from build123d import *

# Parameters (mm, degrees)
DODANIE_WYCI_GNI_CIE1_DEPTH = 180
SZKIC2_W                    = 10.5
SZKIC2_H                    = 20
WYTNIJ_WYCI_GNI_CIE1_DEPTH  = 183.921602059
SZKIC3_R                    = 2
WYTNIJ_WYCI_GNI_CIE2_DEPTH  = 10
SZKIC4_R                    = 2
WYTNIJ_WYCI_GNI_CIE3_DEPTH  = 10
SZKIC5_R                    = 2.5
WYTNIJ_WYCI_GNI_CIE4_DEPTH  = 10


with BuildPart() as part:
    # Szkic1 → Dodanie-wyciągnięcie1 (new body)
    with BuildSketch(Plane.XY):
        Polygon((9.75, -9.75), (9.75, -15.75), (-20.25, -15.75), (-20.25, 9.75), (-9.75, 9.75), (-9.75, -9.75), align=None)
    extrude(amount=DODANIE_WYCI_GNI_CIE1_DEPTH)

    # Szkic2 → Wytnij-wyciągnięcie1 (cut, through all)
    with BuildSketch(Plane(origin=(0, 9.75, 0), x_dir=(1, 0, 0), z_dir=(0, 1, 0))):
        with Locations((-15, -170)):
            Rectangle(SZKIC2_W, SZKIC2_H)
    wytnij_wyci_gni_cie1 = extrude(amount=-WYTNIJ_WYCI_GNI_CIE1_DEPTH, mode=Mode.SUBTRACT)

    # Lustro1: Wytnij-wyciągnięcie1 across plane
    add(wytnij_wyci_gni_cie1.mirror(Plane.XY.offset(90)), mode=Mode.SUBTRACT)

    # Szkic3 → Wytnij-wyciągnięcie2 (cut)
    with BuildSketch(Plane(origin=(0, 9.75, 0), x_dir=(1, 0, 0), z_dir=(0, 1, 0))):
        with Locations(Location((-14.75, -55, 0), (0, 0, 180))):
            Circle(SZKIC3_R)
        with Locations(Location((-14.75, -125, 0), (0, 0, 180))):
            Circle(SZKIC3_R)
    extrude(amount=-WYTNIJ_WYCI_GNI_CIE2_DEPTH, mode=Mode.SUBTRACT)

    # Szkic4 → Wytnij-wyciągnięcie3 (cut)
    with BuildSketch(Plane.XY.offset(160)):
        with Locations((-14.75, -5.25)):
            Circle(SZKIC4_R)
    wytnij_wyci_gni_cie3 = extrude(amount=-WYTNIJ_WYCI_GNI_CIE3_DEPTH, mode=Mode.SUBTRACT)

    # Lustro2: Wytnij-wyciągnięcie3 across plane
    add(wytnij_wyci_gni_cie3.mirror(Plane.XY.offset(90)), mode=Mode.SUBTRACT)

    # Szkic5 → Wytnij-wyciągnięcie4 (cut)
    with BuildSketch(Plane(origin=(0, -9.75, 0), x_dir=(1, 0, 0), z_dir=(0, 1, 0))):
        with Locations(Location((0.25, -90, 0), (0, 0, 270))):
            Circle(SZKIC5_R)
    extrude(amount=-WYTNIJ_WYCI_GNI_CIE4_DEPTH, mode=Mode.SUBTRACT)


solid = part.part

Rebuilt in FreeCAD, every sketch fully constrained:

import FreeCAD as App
import Part
import Sketcher

V = App.Vector
Q = App.Units.Quantity

doc = App.newDocument("Part")
body = doc.addObject("PartDesign::Body", "Body")

sketch1 = body.newObject("Sketcher::SketchObject", "Sketch")
sketch1.AttachmentSupport = (doc.getObject("XY_Plane"), [""])
sketch1.MapMode = "FlatFace"
sketch1.addGeometry(Part.LineSegment(V(10, -16, 0), V(10, -10, 0)), False)
sketch1.addGeometry(Part.LineSegment(V(10, -10, 0), V(-10, -10, 0)), False)
sketch1.addGeometry(Part.LineSegment(V(-10, -10, 0), V(-10, 10, 0)), False)
sketch1.addGeometry(Part.LineSegment(V(-10, 10, 0), V(-20, 10, 0)), False)
sketch1.addGeometry(Part.LineSegment(V(-20, 10, 0), V(-20, -16, 0)), False)
sketch1.addGeometry(Part.LineSegment(V(-20, -16, 0), V(10, -16, 0)), False)
sketch1.addConstraint(Sketcher.Constraint("Coincident", 0, 2, 1, 1))
sketch1.addConstraint(Sketcher.Constraint("Coincident", 1, 2, 2, 1))
sketch1.addConstraint(Sketcher.Constraint("Coincident", 2, 2, 3, 1))
sketch1.addConstraint(Sketcher.Constraint("Coincident", 3, 2, 4, 1))
sketch1.addConstraint(Sketcher.Constraint("Coincident", 4, 2, 5, 1))
sketch1.addConstraint(Sketcher.Constraint("Coincident", 5, 2, 0, 1))
sketch1.addConstraint(Sketcher.Constraint("Vertical", 0))
sketch1.addConstraint(Sketcher.Constraint("Horizontal", 1))
sketch1.addConstraint(Sketcher.Constraint("Vertical", 2))
sketch1.addConstraint(Sketcher.Constraint("Horizontal", 3))
sketch1.addConstraint(Sketcher.Constraint("Vertical", 4))
sketch1.addConstraint(Sketcher.Constraint("Horizontal", 5))
sketch1.addConstraint(Sketcher.Constraint("Symmetric", 0, 2, 2, 2, -1, 1))
sketch1.addConstraint(Sketcher.Constraint("Equal", 1, 2))
sketch1.addConstraint(Sketcher.Constraint("DistanceX", 5, 1, 5, 2, Q("30 mm")))
sketch1.addConstraint(Sketcher.Constraint("DistanceY", 0, 1, 0, 2, Q("6 mm")))
sketch1.addConstraint(Sketcher.Constraint("DistanceX", 1, 2, 1, 1, Q("19.5 mm")))
pad1 = body.newObject("PartDesign::Pad", "Pad")
pad1.Profile = sketch1
pad1.Length = 180

sketch2 = body.newObject("Sketcher::SketchObject", "Sketch001")
sketch2.AttachmentSupport = (doc.getObject("XZ_Plane"), [""])
sketch2.MapMode = "FlatFace"
sketch2.AttachmentOffset = App.Placement(V(0, 0, -9.75), App.Rotation())
sketch2.addGeometry(Part.LineSegment(V(-20, 160, 0), V(-20, 180, 0)), False)
sketch2.addGeometry(Part.LineSegment(V(-20, 180, 0), V(-10, 180, 0)), False)
sketch2.addGeometry(Part.LineSegment(V(-10, 180, 0), V(-10, 160, 0)), False)
sketch2.addGeometry(Part.LineSegment(V(-10, 160, 0), V(-20, 160, 0)), False)
sketch2.addConstraint(Sketcher.Constraint("Coincident", 0, 2, 1, 1))
sketch2.addConstraint(Sketcher.Constraint("Coincident", 1, 2, 2, 1))
sketch2.addConstraint(Sketcher.Constraint("Coincident", 2, 2, 3, 1))
sketch2.addConstraint(Sketcher.Constraint("Coincident", 3, 2, 0, 1))
sketch2.addConstraint(Sketcher.Constraint("Vertical", 0))
sketch2.addConstraint(Sketcher.Constraint("Horizontal", 1))
sketch2.addConstraint(Sketcher.Constraint("Vertical", 2))
sketch2.addConstraint(Sketcher.Constraint("Horizontal", 3))
sketch2.addConstraint(Sketcher.Constraint("DistanceY", 0, 1, 0, 2, Q("20 mm")))
sketch2.addConstraint(Sketcher.Constraint("DistanceX", 1, 1, 1, 2, Q("10.5 mm")))
sketch2.addConstraint(Sketcher.Constraint("DistanceY", -1, 1, 0, 2, Q("180 mm")))
sketch2.addConstraint(Sketcher.Constraint("DistanceX", 0, 2, -1, 1, Q("20.25 mm")))
pocket1 = body.newObject("PartDesign::Pocket", "Pocket")
pocket1.Profile = sketch2
pocket1.Type = "ThroughAll"
pocket1.Reversed = True
doc.recompute()

datumplane = body.newObject("PartDesign::Plane", "DatumPlane")
datumplane.AttachmentSupport = (doc.getObject("XY_Plane"), [""])
datumplane.MapMode = "FlatFace"
datumplane.AttachmentOffset = App.Placement(V(0, 0, 90), App.Rotation())
mirrored = body.newObject("PartDesign::Mirrored", "Mirrored")
mirrored.Originals = [pocket1]
mirrored.MirrorPlane = (datumplane, [""])
body.Tip = mirrored

sketch3 = body.newObject("Sketcher::SketchObject", "Sketch002")
sketch3.AttachmentSupport = (doc.getObject("XZ_Plane"), [""])
sketch3.MapMode = "FlatFace"
sketch3.AttachmentOffset = App.Placement(V(0, 0, -9.75), App.Rotation())
sketch3.addGeometry(Part.Circle(V(-14.8, 55, 0), V(0, 0, 1), 2), False)
sketch3.addGeometry(Part.Circle(V(-14.8, 125, 0), V(0, 0, 1), 2), False)
sketch3.addConstraint(Sketcher.Constraint("Equal", 0, 1))
sketch3.addConstraint(Sketcher.Constraint("Vertical", 0, 3, 1, 3))
sketch3.addConstraint(Sketcher.Constraint("Diameter", 0, Q("4 mm")))
sketch3.addConstraint(Sketcher.Constraint("DistanceY", -1, 1, 0, 3, Q("55 mm")))
sketch3.addConstraint(Sketcher.Constraint("DistanceY", -1, 1, 1, 3, Q("125 mm")))
sketch3.addConstraint(Sketcher.Constraint("DistanceX", 0, 3, -1, 1, Q("14.75 mm")))
pocket2 = body.newObject("PartDesign::Pocket", "Pocket001")
pocket2.Profile = sketch3
pocket2.Length = 10
pocket2.Reversed = True

sketch4 = body.newObject("Sketcher::SketchObject", "Sketch003")
sketch4.AttachmentSupport = (doc.getObject("XY_Plane"), [""])
sketch4.MapMode = "FlatFace"
sketch4.AttachmentOffset = App.Placement(V(0, 0, 160), App.Rotation())
sketch4.addGeometry(Part.Circle(V(-14.8, -5.2, 0), V(0, 0, 1), 2), False)
sketch4.addConstraint(Sketcher.Constraint("Diameter", 0, Q("4 mm")))
sketch4.addConstraint(Sketcher.Constraint("DistanceX", 0, 3, -1, 1, Q("14.75 mm")))
sketch4.addConstraint(Sketcher.Constraint("DistanceY", 0, 3, -1, 1, Q("5.25 mm")))
pocket3 = body.newObject("PartDesign::Pocket", "Pocket002")
pocket3.Profile = sketch4
pocket3.Length = 10
doc.recompute()

datumplane2 = body.newObject("PartDesign::Plane", "DatumPlane001")
datumplane2.AttachmentSupport = (doc.getObject("XY_Plane"), [""])
datumplane2.MapMode = "FlatFace"
datumplane2.AttachmentOffset = App.Placement(V(0, 0, 90), App.Rotation())
mirrored2 = body.newObject("PartDesign::Mirrored", "Mirrored001")
mirrored2.Originals = [pocket3]
mirrored2.MirrorPlane = (datumplane2, [""])
body.Tip = mirrored2

sketch5 = body.newObject("Sketcher::SketchObject", "Sketch004")
sketch5.AttachmentSupport = (doc.getObject("XZ_Plane"), [""])
sketch5.MapMode = "FlatFace"
sketch5.AttachmentOffset = App.Placement(V(0, 0, 9.75), App.Rotation())
sketch5.addGeometry(Part.Circle(V(0.2, 90, 0), V(0, 0, 1), 2.5), False)
sketch5.addConstraint(Sketcher.Constraint("Diameter", 0, Q("5 mm")))
sketch5.addConstraint(Sketcher.Constraint("DistanceY", -1, 1, 0, 3, Q("90 mm")))
sketch5.addConstraint(Sketcher.Constraint("DistanceX", -1, 1, 0, 3, Q("0.25 mm")))
pocket4 = body.newObject("PartDesign::Pocket", "Pocket003")
pocket4.Profile = sketch5
pocket4.Length = 10
pocket4.Reversed = True

doc.recompute()
